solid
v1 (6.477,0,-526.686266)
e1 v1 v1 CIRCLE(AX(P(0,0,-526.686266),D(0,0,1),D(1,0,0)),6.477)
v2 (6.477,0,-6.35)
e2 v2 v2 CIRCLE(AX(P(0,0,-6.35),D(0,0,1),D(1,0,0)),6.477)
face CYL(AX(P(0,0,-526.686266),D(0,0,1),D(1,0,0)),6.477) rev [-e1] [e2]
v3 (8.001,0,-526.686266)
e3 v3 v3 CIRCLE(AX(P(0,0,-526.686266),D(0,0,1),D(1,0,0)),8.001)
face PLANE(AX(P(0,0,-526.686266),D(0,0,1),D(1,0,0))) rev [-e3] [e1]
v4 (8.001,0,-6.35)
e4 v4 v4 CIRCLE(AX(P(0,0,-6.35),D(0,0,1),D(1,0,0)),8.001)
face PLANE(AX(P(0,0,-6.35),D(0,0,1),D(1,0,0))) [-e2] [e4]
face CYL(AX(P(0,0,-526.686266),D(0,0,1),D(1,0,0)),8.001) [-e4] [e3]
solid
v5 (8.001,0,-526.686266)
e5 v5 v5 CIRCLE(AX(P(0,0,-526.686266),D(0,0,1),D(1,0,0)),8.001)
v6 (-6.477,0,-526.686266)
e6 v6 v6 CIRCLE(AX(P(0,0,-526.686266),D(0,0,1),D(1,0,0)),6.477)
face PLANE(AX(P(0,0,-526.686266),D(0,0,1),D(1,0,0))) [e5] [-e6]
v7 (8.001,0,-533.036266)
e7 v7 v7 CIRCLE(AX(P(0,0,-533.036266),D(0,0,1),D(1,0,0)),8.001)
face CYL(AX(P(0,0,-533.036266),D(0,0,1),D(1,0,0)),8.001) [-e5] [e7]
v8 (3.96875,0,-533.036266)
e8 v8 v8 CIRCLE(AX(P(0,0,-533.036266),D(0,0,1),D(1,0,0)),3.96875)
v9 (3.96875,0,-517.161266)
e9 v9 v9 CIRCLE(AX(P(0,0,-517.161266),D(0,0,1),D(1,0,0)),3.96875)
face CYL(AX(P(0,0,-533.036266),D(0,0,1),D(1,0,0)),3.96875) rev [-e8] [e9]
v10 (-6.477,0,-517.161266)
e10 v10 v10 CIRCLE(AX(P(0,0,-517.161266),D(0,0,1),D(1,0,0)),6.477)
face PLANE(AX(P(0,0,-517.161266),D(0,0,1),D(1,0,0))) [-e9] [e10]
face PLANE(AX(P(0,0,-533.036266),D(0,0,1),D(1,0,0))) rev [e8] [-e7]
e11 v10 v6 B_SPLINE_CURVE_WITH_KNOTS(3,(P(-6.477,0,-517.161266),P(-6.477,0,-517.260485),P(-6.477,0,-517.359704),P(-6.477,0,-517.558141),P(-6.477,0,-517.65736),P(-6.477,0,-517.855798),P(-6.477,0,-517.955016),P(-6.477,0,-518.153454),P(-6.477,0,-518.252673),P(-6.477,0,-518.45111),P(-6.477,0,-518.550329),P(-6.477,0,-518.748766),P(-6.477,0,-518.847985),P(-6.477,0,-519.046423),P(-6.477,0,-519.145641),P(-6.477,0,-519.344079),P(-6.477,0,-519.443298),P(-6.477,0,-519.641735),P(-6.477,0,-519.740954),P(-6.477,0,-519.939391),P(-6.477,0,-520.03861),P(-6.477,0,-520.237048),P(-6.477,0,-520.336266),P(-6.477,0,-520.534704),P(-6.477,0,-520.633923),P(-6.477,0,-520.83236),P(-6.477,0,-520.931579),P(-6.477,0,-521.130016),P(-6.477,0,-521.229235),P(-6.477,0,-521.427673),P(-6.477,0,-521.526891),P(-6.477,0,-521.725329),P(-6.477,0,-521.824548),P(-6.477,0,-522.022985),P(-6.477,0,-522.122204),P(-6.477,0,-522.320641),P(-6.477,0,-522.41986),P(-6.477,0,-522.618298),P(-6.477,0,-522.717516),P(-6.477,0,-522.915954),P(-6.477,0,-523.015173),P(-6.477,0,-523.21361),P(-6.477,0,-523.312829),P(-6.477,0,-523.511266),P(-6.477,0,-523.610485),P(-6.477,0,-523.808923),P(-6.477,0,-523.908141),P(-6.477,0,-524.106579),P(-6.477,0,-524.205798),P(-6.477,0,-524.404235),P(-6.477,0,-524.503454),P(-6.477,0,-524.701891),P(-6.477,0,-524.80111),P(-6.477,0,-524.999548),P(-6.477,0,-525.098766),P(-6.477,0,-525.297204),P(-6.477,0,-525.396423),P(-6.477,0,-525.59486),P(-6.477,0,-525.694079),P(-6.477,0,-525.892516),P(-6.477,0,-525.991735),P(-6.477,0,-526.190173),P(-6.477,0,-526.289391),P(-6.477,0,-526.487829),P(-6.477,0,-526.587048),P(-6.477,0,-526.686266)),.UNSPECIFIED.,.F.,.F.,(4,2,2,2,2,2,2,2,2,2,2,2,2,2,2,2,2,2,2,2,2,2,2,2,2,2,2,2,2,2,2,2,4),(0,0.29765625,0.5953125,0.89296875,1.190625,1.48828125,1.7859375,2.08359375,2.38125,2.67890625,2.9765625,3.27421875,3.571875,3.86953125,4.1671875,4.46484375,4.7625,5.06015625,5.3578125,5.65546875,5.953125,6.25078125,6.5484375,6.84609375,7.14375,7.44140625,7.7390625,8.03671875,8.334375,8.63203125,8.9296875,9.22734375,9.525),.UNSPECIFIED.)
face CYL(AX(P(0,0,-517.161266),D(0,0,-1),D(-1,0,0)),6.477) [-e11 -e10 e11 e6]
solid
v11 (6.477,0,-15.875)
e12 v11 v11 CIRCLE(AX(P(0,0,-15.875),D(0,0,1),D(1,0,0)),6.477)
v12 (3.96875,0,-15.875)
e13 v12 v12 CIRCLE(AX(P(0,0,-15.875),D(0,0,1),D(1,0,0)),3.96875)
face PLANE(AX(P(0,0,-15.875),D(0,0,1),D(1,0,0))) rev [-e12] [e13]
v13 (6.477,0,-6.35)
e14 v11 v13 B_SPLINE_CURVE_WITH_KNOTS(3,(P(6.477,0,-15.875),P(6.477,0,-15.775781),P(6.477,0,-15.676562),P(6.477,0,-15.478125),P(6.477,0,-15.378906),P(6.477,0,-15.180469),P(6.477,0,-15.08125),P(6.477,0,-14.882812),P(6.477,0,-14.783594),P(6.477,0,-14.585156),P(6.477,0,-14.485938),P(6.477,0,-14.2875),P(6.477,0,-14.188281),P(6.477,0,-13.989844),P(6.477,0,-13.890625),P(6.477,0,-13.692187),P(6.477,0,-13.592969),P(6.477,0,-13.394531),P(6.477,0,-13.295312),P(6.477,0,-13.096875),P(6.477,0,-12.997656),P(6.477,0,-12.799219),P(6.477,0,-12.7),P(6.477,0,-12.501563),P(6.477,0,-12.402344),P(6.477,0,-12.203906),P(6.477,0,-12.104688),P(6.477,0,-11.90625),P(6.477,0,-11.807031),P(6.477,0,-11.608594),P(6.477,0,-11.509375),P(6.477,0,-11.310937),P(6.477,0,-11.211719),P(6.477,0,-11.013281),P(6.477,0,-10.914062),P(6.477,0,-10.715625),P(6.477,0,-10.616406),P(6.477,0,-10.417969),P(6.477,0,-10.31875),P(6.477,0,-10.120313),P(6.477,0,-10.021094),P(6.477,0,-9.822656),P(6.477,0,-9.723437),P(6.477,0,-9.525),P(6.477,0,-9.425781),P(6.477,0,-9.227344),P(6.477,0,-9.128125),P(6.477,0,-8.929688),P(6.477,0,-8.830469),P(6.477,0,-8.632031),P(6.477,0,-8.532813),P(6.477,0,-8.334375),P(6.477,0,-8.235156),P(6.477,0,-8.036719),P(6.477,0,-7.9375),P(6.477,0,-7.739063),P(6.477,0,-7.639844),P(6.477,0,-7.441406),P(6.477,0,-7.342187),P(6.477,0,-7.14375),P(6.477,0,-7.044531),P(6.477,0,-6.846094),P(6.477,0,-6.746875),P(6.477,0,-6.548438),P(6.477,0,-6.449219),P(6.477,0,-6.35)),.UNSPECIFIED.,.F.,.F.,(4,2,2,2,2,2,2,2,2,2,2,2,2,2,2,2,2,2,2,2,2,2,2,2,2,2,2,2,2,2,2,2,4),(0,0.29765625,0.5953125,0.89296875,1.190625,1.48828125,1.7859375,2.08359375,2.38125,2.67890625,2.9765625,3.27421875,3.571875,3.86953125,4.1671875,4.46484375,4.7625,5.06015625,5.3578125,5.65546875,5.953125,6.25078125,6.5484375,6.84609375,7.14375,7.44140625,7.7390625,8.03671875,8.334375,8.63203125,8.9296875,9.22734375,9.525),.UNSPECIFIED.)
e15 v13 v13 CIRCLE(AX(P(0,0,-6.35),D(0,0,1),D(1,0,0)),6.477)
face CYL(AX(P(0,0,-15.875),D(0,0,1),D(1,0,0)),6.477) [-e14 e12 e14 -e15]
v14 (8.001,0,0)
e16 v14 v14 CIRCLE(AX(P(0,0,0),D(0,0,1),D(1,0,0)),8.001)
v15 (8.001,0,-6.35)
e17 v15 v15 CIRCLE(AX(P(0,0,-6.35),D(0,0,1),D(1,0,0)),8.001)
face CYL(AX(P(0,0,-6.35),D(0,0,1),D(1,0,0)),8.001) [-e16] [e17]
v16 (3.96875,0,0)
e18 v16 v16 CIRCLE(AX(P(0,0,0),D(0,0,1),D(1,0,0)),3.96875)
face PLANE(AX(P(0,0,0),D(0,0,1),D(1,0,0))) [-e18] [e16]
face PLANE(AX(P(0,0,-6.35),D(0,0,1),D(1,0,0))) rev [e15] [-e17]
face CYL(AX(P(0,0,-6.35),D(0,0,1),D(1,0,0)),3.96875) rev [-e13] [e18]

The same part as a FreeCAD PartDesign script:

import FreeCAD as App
import Part
import Sketcher

V = App.Vector
Q = App.Units.Quantity

doc = App.newDocument("Part")
body = doc.addObject("PartDesign::Body", "Body")

sketch1 = doc.addObject("Sketcher::SketchObject", "Sketch")
body.addObject(sketch1)
sketch1.AttachmentSupport = (doc.XY_Plane, [""])
sketch1.MapMode = "FlatFace"
sketch1.addGeometry([
    Part.Circle(V(0, 0, 0), V(0, 0, 1), 8.001),
    Part.Circle(V(0, 0, 0), V(0, 0, 1), 3.96875),
], False)
sketch1.addConstraint([
    Sketcher.Constraint("Coincident", 0, 3, -1, 1),
    Sketcher.Constraint("Coincident", 1, 3, -1, 1),
    Sketcher.Constraint("Diameter", 0, Q("0.63 in")),
    Sketcher.Constraint("Diameter", 1, Q("0.3125 in")),
])
pad1 = doc.addObject("PartDesign::Pad", "Pad")
body.addObject(pad1)
pad1.Profile = sketch1
pad1.Length = Q("0.25 in")
pad1.Reversed = True

sketch2 = doc.addObject("Sketcher::SketchObject", "Sketch001")
body.addObject(sketch2)
sketch2.AttachmentSupport = (doc.XY_Plane, [""])
sketch2.MapMode = "FlatFace"
sketch2.AttachmentOffset = App.Placement(V(0, 0, -0.25 * 25.4), App.Rotation())
sketch2.addGeometry([
    Part.Circle(V(0, 0, 0), V(0, 0, 1), 6.477),
    Part.Circle(V(0, 0, 0), V(0, 0, 1), 3.96875),
], False)
sketch2.addConstraint([
    Sketcher.Constraint("Coincident", 0, 3, -1, 1),
    Sketcher.Constraint("Coincident", 1, 3, -1, 1),
    Sketcher.Constraint("Diameter", 0, Q("0.51 in")),
    Sketcher.Constraint("Diameter", 1, Q("0.3125 in")),
])
pad2 = doc.addObject("PartDesign::Pad", "Pad001")
body.addObject(pad2)
pad2.Profile = sketch2
pad2.Length = Q("0.375 in")
pad2.Reversed = True
body2 = doc.addObject("PartDesign::Body", "Body001")

sketch3 = doc.addObject("Sketcher::SketchObject", "Sketch002")
body2.addObject(sketch3)
sketch3.AttachmentSupport = (doc.getObject("XY_Plane001"), [""])
sketch3.MapMode = "FlatFace"
sketch3.AttachmentOffset = App.Placement(V(0, 0, -0.25 * 25.4), App.Rotation())
sketch3.addGeometry([
    Part.Circle(V(0, 0, 0), V(0, 0, 1), 8.001),
    Part.Circle(V(0, 0, 0), V(0, 0, 1), 6.477),
], False)
sketch3.addConstraint([
    Sketcher.Constraint("Coincident", 0, 3, -1, 1),
    Sketcher.Constraint("Coincident", 1, 3, -1, 1),
    Sketcher.Constraint("Diameter", 0, Q("0.63 in")),
    Sketcher.Constraint("Diameter", 1, Q("0.51 in")),
])
pad3 = doc.addObject("PartDesign::Pad", "Pad002")
body2.addObject(pad3)
pad3.Profile = sketch3
pad3.Length = 520.336266
pad3.Reversed = True
body3 = doc.addObject("PartDesign::Body", "Body002")

sketch4 = doc.addObject("Sketcher::SketchObject", "Sketch003")
body3.addObject(sketch4)
sketch4.AttachmentSupport = (doc.getObject("XY_Plane002"), [""])
sketch4.MapMode = "FlatFace"
sketch4.AttachmentOffset = App.Placement(V(0, 0, -526.686266), App.Rotation())
sketch4.addGeometry([
    Part.Circle(V(0, 0, 0), V(0, 0, 1), 6.477),
    Part.Circle(V(0, 0, 0), V(0, 0, 1), 3.96875),
], False)
sketch4.addConstraint([
    Sketcher.Constraint("Coincident", 0, 3, -1, 1),
    Sketcher.Constraint("Coincident", 1, 3, -1, 1),
    Sketcher.Constraint("Diameter", 0, Q("0.51 in")),
    Sketcher.Constraint("Diameter", 1, Q("0.3125 in")),
])
pad4 = doc.addObject("PartDesign::Pad", "Pad003")
body3.addObject(pad4)
pad4.Profile = sketch4
pad4.Length = Q("0.375 in")
body4 = doc.addObject("PartDesign::Body", "Body003")

sketch5 = doc.addObject("Sketcher::SketchObject", "Sketch004")
body4.addObject(sketch5)
sketch5.AttachmentSupport = (doc.getObject("XY_Plane003"), [""])
sketch5.MapMode = "FlatFace"
sketch5.AttachmentOffset = App.Placement(V(0, 0, -526.686266), App.Rotation())
sketch5.addGeometry([
    Part.Circle(V(0, 0, 0), V(0, 0, 1), 8.001),
    Part.Circle(V(0, 0, 0), V(0, 0, 1), 3.96875),
], False)
sketch5.addConstraint([
    Sketcher.Constraint("Coincident", 0, 3, -1, 1),
    Sketcher.Constraint("Coincident", 1, 3, -1, 1),
    Sketcher.Constraint("Diameter", 0, Q("0.63 in")),
    Sketcher.Constraint("Diameter", 1, Q("0.3125 in")),
])
pad5 = doc.addObject("PartDesign::Pad", "Pad004")
body4.addObject(pad5)
pad5.Profile = sketch5
pad5.Length = Q("0.25 in")
pad5.Reversed = True
doc.recompute()

boolean = doc.addObject("PartDesign::Boolean", "Boolean")
body4.addObject(boolean)
boolean.Type = "Fuse"
boolean.addObjects([body3])

doc.recompute()
